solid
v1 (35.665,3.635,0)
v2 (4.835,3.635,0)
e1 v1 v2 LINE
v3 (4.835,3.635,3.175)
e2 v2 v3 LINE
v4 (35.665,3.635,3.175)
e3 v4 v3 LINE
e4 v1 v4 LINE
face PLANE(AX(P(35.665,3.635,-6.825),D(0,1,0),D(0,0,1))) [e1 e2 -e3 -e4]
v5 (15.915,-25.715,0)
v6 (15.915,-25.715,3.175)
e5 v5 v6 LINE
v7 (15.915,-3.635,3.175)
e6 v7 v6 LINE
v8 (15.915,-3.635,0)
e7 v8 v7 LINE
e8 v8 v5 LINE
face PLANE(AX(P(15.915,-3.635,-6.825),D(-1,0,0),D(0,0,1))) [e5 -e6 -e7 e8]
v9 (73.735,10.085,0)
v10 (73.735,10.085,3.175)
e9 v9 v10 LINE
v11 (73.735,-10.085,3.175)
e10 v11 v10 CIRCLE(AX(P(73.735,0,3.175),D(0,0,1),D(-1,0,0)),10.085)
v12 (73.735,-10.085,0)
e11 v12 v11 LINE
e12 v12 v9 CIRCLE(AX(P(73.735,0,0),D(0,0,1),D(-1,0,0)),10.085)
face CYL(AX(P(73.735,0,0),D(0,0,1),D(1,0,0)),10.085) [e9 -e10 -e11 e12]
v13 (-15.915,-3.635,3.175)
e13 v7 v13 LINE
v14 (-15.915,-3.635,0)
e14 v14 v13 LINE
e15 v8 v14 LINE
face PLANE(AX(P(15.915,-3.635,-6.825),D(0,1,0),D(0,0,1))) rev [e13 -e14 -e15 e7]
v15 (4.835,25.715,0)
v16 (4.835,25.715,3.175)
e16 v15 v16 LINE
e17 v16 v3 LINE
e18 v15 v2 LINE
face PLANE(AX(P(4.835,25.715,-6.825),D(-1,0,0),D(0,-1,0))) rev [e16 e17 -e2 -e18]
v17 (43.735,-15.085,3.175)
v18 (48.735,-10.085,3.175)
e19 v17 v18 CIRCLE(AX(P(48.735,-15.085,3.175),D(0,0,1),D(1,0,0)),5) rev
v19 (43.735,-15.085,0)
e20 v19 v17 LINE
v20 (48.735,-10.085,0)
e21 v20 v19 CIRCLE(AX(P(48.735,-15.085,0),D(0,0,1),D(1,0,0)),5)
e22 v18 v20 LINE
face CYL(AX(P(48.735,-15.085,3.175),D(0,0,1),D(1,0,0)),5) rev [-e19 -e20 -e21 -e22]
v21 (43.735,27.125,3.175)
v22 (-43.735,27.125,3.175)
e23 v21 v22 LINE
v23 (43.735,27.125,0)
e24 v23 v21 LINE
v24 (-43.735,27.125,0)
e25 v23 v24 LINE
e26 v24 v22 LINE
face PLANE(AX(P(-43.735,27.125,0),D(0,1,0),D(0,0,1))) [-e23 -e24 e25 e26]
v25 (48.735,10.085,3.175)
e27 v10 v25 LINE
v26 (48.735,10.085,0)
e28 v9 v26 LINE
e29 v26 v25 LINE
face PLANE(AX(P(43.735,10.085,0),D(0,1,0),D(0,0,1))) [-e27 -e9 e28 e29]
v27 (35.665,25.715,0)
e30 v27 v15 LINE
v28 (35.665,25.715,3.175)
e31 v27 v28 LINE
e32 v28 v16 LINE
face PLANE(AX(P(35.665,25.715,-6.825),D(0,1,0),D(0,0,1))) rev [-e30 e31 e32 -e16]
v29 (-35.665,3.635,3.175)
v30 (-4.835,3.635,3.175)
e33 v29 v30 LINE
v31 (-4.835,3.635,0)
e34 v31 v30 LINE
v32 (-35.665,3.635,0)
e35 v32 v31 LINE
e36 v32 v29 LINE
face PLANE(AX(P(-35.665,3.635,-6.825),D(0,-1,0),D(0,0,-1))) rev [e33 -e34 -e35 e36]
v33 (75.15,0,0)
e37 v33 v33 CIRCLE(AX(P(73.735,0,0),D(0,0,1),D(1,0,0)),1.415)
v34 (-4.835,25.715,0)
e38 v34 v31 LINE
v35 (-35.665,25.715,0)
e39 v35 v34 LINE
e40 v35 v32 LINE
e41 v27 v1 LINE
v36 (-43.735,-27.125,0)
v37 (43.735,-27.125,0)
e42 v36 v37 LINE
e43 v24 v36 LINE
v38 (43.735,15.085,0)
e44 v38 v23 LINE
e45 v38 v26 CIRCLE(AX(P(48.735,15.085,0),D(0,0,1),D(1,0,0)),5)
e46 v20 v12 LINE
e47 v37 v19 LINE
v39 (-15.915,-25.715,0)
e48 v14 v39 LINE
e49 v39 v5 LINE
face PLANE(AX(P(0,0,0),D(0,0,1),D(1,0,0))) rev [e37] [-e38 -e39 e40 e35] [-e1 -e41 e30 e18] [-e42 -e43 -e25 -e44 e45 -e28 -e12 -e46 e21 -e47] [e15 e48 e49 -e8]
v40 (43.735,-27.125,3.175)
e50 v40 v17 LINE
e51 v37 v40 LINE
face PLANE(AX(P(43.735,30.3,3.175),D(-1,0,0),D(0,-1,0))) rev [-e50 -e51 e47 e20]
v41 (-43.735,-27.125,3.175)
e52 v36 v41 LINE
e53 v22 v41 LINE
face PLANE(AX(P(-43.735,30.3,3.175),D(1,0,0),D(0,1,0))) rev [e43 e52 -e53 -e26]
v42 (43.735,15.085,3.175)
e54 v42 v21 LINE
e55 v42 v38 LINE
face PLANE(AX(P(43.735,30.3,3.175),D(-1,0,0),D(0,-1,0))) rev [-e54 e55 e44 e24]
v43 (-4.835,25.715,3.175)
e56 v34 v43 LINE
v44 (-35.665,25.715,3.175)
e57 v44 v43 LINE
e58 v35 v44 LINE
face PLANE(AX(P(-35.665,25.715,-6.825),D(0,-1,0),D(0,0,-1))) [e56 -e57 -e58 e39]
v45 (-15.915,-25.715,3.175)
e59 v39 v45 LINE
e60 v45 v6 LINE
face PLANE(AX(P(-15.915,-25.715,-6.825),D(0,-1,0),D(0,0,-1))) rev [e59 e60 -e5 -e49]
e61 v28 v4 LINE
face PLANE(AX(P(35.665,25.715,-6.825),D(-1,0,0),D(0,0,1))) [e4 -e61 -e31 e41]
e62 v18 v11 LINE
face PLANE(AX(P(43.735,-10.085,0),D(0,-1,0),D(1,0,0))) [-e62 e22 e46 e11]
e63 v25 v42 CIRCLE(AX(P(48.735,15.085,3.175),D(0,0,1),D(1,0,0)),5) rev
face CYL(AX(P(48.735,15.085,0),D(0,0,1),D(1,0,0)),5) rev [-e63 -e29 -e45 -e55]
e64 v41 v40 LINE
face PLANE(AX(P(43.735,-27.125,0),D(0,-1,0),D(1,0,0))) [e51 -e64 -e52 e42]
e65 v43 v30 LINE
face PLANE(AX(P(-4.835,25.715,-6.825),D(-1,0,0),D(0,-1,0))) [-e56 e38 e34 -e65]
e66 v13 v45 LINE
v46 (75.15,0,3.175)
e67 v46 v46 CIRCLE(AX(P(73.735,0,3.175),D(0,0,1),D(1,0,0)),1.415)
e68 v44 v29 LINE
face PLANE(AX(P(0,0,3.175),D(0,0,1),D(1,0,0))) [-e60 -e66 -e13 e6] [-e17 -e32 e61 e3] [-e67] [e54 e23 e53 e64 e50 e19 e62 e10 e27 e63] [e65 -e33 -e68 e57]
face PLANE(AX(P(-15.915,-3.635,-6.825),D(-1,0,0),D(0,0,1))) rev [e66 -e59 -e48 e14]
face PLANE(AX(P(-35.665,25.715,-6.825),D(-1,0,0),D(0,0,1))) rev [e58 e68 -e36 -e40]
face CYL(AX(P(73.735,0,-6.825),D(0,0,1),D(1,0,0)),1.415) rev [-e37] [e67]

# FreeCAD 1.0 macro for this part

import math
import FreeCAD as App
import Part
import Sketcher
from FreeCAD import Vector
Q = App.Units.Quantity


def edges_at(feature, points):
    """Names of the edges that pass closest to the given points."""
    edges = feature.Shape.Edges
    near = lambda p: min(range(len(edges)), key=lambda i: edges[i].distToShape(Part.Vertex(*p))[0])
    return sorted({f"Edge{near(p) + 1}" for p in points})

doc = App.newDocument("Part")
params = doc.addObject("Spreadsheet::Sheet", "Params")
for row, (alias, value) in enumerate([
    ("sketch1_height", "60.6 mm"),
    ("sketch1_width", "87.47 mm"),
    ("pad1_length", "3.175 mm"),
    ("sketch2_width", "30 mm"),
    ("pad2_length", "3.175 mm"),
    ("fillet_radius", "5 mm"),
    ("sketch3_diameter", "2.83 mm"),
    ("pocket1_length", "10 mm"),
    ("sketch4_width", "87.47 mm"),
    ("pocket2_length", "10 mm"),
    ("sketch5_width", "30.83 mm"),
    ("sketch5_width2", "31.83 mm"),
    ("sketch5_height", "22.08 mm"),
    ("pocket3_length", "10 mm"),
    ("sketch6_width", "87.47 mm"),
    ("sketch6_height", "0.09 mm"),
    ("pad3_length", "3.175 mm"),
], start=1):
    params.set(f"A{row}", alias)
    params.set(f"B{row}", "=" + value)
    params.setAlias(f"B{row}", alias)

body = doc.addObject("PartDesign::Body", "Body")

sketch1 = doc.addObject("Sketcher::SketchObject", "Sketch")
body.addObject(sketch1)
sketch1.AttachmentSupport = (doc.XY_Plane, [""])
sketch1.MapMode = "FlatFace"
sketch1.addGeometry(Part.LineSegment(Vector(-44, 30, 0), Vector(-44, -30, 0)), False)
sketch1.addGeometry(Part.LineSegment(Vector(-44, -30, 0), Vector(44, -30, 0)), False)
sketch1.addGeometry(Part.LineSegment(Vector(44, -30, 0), Vector(44, 30, 0)), False)
sketch1.addGeometry(Part.LineSegment(Vector(44, 30, 0), Vector(-44, 30, 0)), False)
sketch1.addConstraint(Sketcher.Constraint("Coincident", 0, 2, 1, 1))
sketch1.addConstraint(Sketcher.Constraint("Coincident", 1, 2, 2, 1))
sketch1.addConstraint(Sketcher.Constraint("Coincident", 2, 2, 3, 1))
sketch1.addConstraint(Sketcher.Constraint("Coincident", 3, 2, 0, 1))
sketch1.addConstraint(Sketcher.Constraint("Vertical", 0))
sketch1.addConstraint(Sketcher.Constraint("Horizontal", 1))
sketch1.addConstraint(Sketcher.Constraint("Vertical", 2))
sketch1.addConstraint(Sketcher.Constraint("Horizontal", 3))
sketch1.addConstraint(Sketcher.Constraint("Symmetric", 0, 2, 2, 2, -1, 1))
sketch1.addConstraint(Sketcher.Constraint("DistanceY", 0, 2, 0, 1, Q("60.6 mm")))
sketch1.addConstraint(Sketcher.Constraint("DistanceX", 1, 1, 1, 2, Q("87.47 mm")))
sketch1.setExpression("Constraints[9]", "Params.sketch1_height")
sketch1.setExpression("Constraints[10]", "Params.sketch1_width")
pad1 = doc.addObject("PartDesign::Pad", "Pad")
body.addObject(pad1)
pad1.Profile = sketch1
pad1.setExpression("Length", "Params.pad1_length")

sketch2 = doc.addObject("Sketcher::SketchObject", "Sketch001")
body.addObject(sketch2)
sketch2.AttachmentSupport = (doc.XY_Plane, [""])
sketch2.MapMode = "FlatFace"
sketch2.AttachmentOffset = App.Placement(Vector(0, 0, 3.175), App.Rotation())
sketch2.addGeometry(Part.LineSegment(Vector(44, 10, 0), Vector(44, -10, 0)), False)
sketch2.addGeometry(Part.LineSegment(Vector(44, -10, 0), Vector(74, -10, 0)), False)
sketch2.addGeometry(Part.ArcOfCircle(Part.Circle(Vector(74, 0, 0), Vector(0, 0, 1), 10), math.radians(-90), math.radians(90)), False)
sketch2.addGeometry(Part.LineSegment(Vector(74, 10, 0), Vector(44, 10, 0)), False)
sketch2.addConstraint(Sketcher.Constraint("Coincident", 0, 2, 1, 1))
sketch2.addConstraint(Sketcher.Constraint("Tangent", 1, 2, 2, 1))
sketch2.addConstraint(Sketcher.Constraint("Tangent", 2, 2, 3, 1))
sketch2.addConstraint(Sketcher.Constraint("Coincident", 3, 2, 0, 1))
sketch2.addConstraint(Sketcher.Constraint("Vertical", 0))
sketch2.addConstraint(Sketcher.Constraint("Horizontal", 1))
sketch2.addConstraint(Sketcher.Constraint("Horizontal", 3))
sketch2.addConstraint(Sketcher.Constraint("PointOnObject", 2, 3, -1))
sketch2.addConstraint(Sketcher.Constraint("DistanceX", 1, 1, 1, 2, Q("30 mm")))
sketch2.addConstraint(Sketcher.Constraint("Radius", 2, Q("10.085 mm")))
sketch2.addConstraint(Sketcher.Constraint("DistanceX", -1, 1, 2, 3, Q("73.735 mm")))
sketch2.setExpression("Constraints[8]", "Params.sketch2_width")
pad2 = doc.addObject("PartDesign::Pad", "Pad001")
body.addObject(pad2)
pad2.Profile = sketch2
pad2.setExpression("Length", "Params.pad2_length")
pad2.Reversed = True
doc.recompute()

fillet = doc.addObject("PartDesign::Fillet", "Fillet")
body.addObject(fillet)
fillet.Base = (pad2, edges_at(pad2, [(43.735, -10.085, 1.587), (43.735, 10.085, 1.587)]))
fillet.setExpression("Radius", "Params.fillet_radius")

sketch3 = doc.addObject("Sketcher::SketchObject", "Sketch002")
body.addObject(sketch3)
sketch3.AttachmentSupport = (doc.XY_Plane, [""])
sketch3.MapMode = "FlatFace"
sketch3.AttachmentOffset = App.Placement(Vector(0, 0, 3.175), App.Rotation())
sketch3.addGeometry(Part.Circle(Vector(73.7, 0, 0), Vector(0, 0, 1), 1.4), False)
sketch3.addConstraint(Sketcher.Constraint("PointOnObject", 0, 3, -1))
sketch3.addConstraint(Sketcher.Constraint("Diameter", 0, Q("2.83 mm")))
sketch3.addConstraint(Sketcher.Constraint("DistanceX", -1, 1, 0, 3, Q("73.735 mm")))
sketch3.setExpression("Constraints[1]", "Params.sketch3_diameter")
pocket1 = doc.addObject("PartDesign::Pocket", "Pocket")
body.addObject(pocket1)
pocket1.Profile = sketch3
pocket1.setExpression("Length", "Params.pocket1_length")

sketch4 = doc.addObject("Sketcher::SketchObject", "Sketch003")
body.addObject(sketch4)
sketch4.AttachmentSupport = (doc.XY_Plane, [""])
sketch4.MapMode = "FlatFace"
sketch4.AttachmentOffset = App.Placement(Vector(0, 0, 3.175), App.Rotation())
sketch4.addGeometry(Part.LineSegment(Vector(-43.7, 30.3, 0), Vector(-43.7, 27, 0)), False)
sketch4.addGeometry(Part.LineSegment(Vector(-43.7, 27, 0), Vector(43.7, 27, 0)), False)
sketch4.addGeometry(Part.LineSegment(Vector(43.7, 27, 0), Vector(43.7, 30.3, 0)), False)
sketch4.addGeometry(Part.LineSegment(Vector(43.7, 30.3, 0), Vector(-43.7, 30.3, 0)), False)
sketch4.addGeometry(Part.LineSegment(Vector(-43.7, -27, 0), Vector(-43.7, -30.3, 0)), False)
sketch4.addGeometry(Part.LineSegment(Vector(-43.7, -30.3, 0), Vector(43.7, -30.3, 0)), False)
sketch4.addGeometry(Part.LineSegment(Vector(43.7, -30.3, 0), Vector(43.7, -27, 0)), False)
sketch4.addGeometry(Part.LineSegment(Vector(43.7, -27, 0), Vector(-43.7, -27, 0)), False)
sketch4.addConstraint(Sketcher.Constraint("Coincident", 0, 2, 1, 1))
sketch4.addConstraint(Sketcher.Constraint("Coincident", 1, 2, 2, 1))
sketch4.addConstraint(Sketcher.Constraint("Coincident", 2, 2, 3, 1))
sketch4.addConstraint(Sketcher.Constraint("Coincident", 3, 2, 0, 1))
sketch4.addConstraint(Sketcher.Constraint("Coincident", 4, 2, 5, 1))
sketch4.addConstraint(Sketcher.Constraint("Coincident", 5, 2, 6, 1))
sketch4.addConstraint(Sketcher.Constraint("Coincident", 6, 2, 7, 1))
sketch4.addConstraint(Sketcher.Constraint("Coincident", 7, 2, 4, 1))
sketch4.addConstraint(Sketcher.Constraint("Vertical", 0))
sketch4.addConstraint(Sketcher.Constraint("Horizontal", 1))
sketch4.addConstraint(Sketcher.Constraint("Vertical", 2))
sketch4.addConstraint(Sketcher.Constraint("Horizontal", 3))
sketch4.addConstraint(Sketcher.Constraint("Vertical", 4))
sketch4.addConstraint(Sketcher.Constraint("Horizontal", 5))
sketch4.addConstraint(Sketcher.Constraint("Vertical", 6))
sketch4.addConstraint(Sketcher.Constraint("Horizontal", 7))
sketch4.addConstraint(Sketcher.Constraint("Symmetric", 2, 2, 4, 2, -1, 1))
sketch4.addConstraint(Sketcher.Constraint("Symmetric", 0, 2, 6, 2, -1, 1))
sketch4.addConstraint(Sketcher.Constraint("Vertical", 3, 2, 4, 2))
sketch4.addConstraint(Sketcher.Constraint("DistanceX", 1, 1, 1, 2, Q("87.47 mm")))
sketch4.addConstraint(Sketcher.Constraint("DistanceY", -1, 1, 2, 2, Q("30.3 mm")))
sketch4.addConstraint(Sketcher.Constraint("DistanceY", 0, 2, 0, 1, Q("3.265 mm")))
sketch4.setExpression("Constraints[19]", "Params.sketch4_width")
pocket2 = doc.addObject("PartDesign::Pocket", "Pocket001")
body.addObject(pocket2)
pocket2.Profile = sketch4
pocket2.setExpression("Length", "Params.pocket2_length")

sketch5 = doc.addObject("Sketcher::SketchObject", "Sketch004")
body.addObject(sketch5)
sketch5.AttachmentSupport = (doc.XY_Plane, [""])
sketch5.MapMode = "FlatFace"
sketch5.AttachmentOffset = App.Placement(Vector(0, 0, 3.175), App.Rotation())
sketch5.addGeometry(Part.LineSegment(Vector(5, 26, 0), Vector(5, 4, 0)), False)
sketch5.addGeometry(Part.LineSegment(Vector(5, 4, 0), Vector(36, 4, 0)), False)
sketch5.addGeometry(Part.LineSegment(Vector(36, 4, 0), Vector(36, 26, 0)), False)
sketch5.addGeometry(Part.LineSegment(Vector(36, 26, 0), Vector(5, 26, 0)), False)
sketch5.addGeometry(Part.LineSegment(Vector(-36, 26, 0), Vector(-36, 4, 0)), False)
sketch5.addGeometry(Part.LineSegment(Vector(-36, 4, 0), Vector(-5, 4, 0)), False)
sketch5.addGeometry(Part.LineSegment(Vector(-5, 4, 0), Vector(-5, 26, 0)), False)
sketch5.addGeometry(Part.LineSegment(Vector(-5, 26, 0), Vector(-36, 26, 0)), False)
sketch5.addGeometry(Part.LineSegment(Vector(-16, -4, 0), Vector(-16, -26, 0)), False)
sketch5.addGeometry(Part.LineSegment(Vector(-16, -26, 0), Vector(16, -26, 0)), False)
sketch5.addGeometry(Part.LineSegment(Vector(16, -26, 0), Vector(16, -4, 0)), False)
sketch5.addGeometry(Part.LineSegment(Vector(16, -4, 0), Vector(-16, -4, 0)), False)
sketch5.addConstraint(Sketcher.Constraint("Coincident", 0, 2, 1, 1))
sketch5.addConstraint(Sketcher.Constraint("Coincident", 1, 2, 2, 1))
sketch5.addConstraint(Sketcher.Constraint("Coincident", 2, 2, 3, 1))
sketch5.addConstraint(Sketcher.Constraint("Coincident", 3, 2, 0, 1))
sketch5.addConstraint(Sketcher.Constraint("Coincident", 4, 2, 5, 1))
sketch5.addConstraint(Sketcher.Constraint("Coincident", 5, 2, 6, 1))
sketch5.addConstraint(Sketcher.Constraint("Coincident", 6, 2, 7, 1))
sketch5.addConstraint(Sketcher.Constraint("Coincident", 7, 2, 4, 1))
sketch5.addConstraint(Sketcher.Constraint("Coincident", 8, 2, 9, 1))
sketch5.addConstraint(Sketcher.Constraint("Coincident", 9, 2, 10, 1))
sketch5.addConstraint(Sketcher.Constraint("Coincident", 10, 2, 11, 1))
sketch5.addConstraint(Sketcher.Constraint("Coincident", 11, 2, 8, 1))
sketch5.addConstraint(Sketcher.Constraint("Vertical", 0))
sketch5.addConstraint(Sketcher.Constraint("Horizontal", 1))
sketch5.addConstraint(Sketcher.Constraint("Vertical", 2))
sketch5.addConstraint(Sketcher.Constraint("Horizontal", 3))
sketch5.addConstraint(Sketcher.Constraint("Vertical", 4))
sketch5.addConstraint(Sketcher.Constraint("Horizontal", 5))
sketch5.addConstraint(Sketcher.Constraint("Vertical", 6))
sketch5.addConstraint(Sketcher.Constraint("Horizontal", 7))
sketch5.addConstraint(Sketcher.Constraint("Vertical", 8))
sketch5.addConstraint(Sketcher.Constraint("Horizontal", 9))
sketch5.addConstraint(Sketcher.Constraint("Vertical", 10))
sketch5.addConstraint(Sketcher.Constraint("Horizontal", 11))
sketch5.addConstraint(Sketcher.Constraint("Symmetric", 1, 2, 4, 2, -2))
sketch5.addConstraint(Sketcher.Constraint("Symmetric", 3, 2, 6, 2, -2))
sketch5.addConstraint(Sketcher.Constraint("Equal", 6, 8))
sketch5.addConstraint(Sketcher.Constraint("DistanceX", 1, 1, 1, 2, Q("30.83 mm")))
sketch5.addConstraint(Sketcher.Constraint("DistanceX", 9, 1, 9, 2, Q("31.83 mm")))
sketch5.addConstraint(Sketcher.Constraint("DistanceY", 0, 2, 0, 1, Q("22.08 mm")))
sketch5.addConstraint(Sketcher.Constraint("DistanceX", 4, 2, 0, 2, Q("40.5 mm")))
sketch5.addConstraint(Sketcher.Constraint("DistanceX", 8, 2, 5, 2, Q("11.08 mm")))
sketch5.addConstraint(Sketcher.Constraint("DistanceY", 8, 2, 5, 2, Q("29.35 mm")))
sketch5.addConstraint(Sketcher.Constraint("DistanceY", -1, 1, 0, 2, Q("3.635 mm")))
sketch5.setExpression("Constraints[27]", "Params.sketch5_width")
sketch5.setExpression("Constraints[28]", "Params.sketch5_width2")
sketch5.setExpression("Constraints[29]", "Params.sketch5_height")
pocket3 = doc.addObject("PartDesign::Pocket", "Pocket002")
body.addObject(pocket3)
pocket3.Profile = sketch5
pocket3.setExpression("Length", "Params.pocket3_length")

sketch6 = doc.addObject("Sketcher::SketchObject", "Sketch005")
body.addObject(sketch6)
sketch6.AttachmentSupport = (doc.XY_Plane, [""])
sketch6.MapMode = "FlatFace"
sketch6.AttachmentOffset = App.Placement(Vector(0, 0, 3.175), App.Rotation())
sketch6.addGeometry(Part.LineSegment(Vector(-43.73, 27.12, 0), Vector(-43.73, 27.04, 0)), False)
sketch6.addGeometry(Part.LineSegment(Vector(-43.73, 27.04, 0), Vector(43.73, 27.04, 0)), False)
sketch6.addGeometry(Part.LineSegment(Vector(43.73, 27.04, 0), Vector(43.73, 27.12, 0)), False)
sketch6.addGeometry(Part.LineSegment(Vector(43.73, 27.12, 0), Vector(-43.73, 27.12, 0)), False)
sketch6.addGeometry(Part.LineSegment(Vector(-43.73, -27.04, 0), Vector(-43.73, -27.12, 0)), False)
sketch6.addGeometry(Part.LineSegment(Vector(-43.73, -27.12, 0), Vector(43.73, -27.12, 0)), False)
sketch6.addGeometry(Part.LineSegment(Vector(43.73, -27.12, 0), Vector(43.73, -27.04, 0)), False)
sketch6.addGeometry(Part.LineSegment(Vector(43.73, -27.04, 0), Vector(-43.73, -27.04, 0)), False)
sketch6.addConstraint(Sketcher.Constraint("Coincident", 0, 2, 1, 1))
sketch6.addConstraint(Sketcher.Constraint("Coincident", 1, 2, 2, 1))
sketch6.addConstraint(Sketcher.Constraint("Coincident", 2, 2, 3, 1))
sketch6.addConstraint(Sketcher.Constraint("Coincident", 3, 2, 0, 1))
sketch6.addConstraint(Sketcher.Constraint("Coincident", 4, 2, 5, 1))
sketch6.addConstraint(Sketcher.Constraint("Coincident", 5, 2, 6, 1))
sketch6.addConstraint(Sketcher.Constraint("Coincident", 6, 2, 7, 1))
sketch6.addConstraint(Sketcher.Constraint("Coincident", 7, 2, 4, 1))
sketch6.addConstraint(Sketcher.Constraint("Vertical", 0))
sketch6.addConstraint(Sketcher.Constraint("Horizontal", 1))
sketch6.addConstraint(Sketcher.Constraint("Vertical", 2))
sketch6.addConstraint(Sketcher.Constraint("Horizontal", 3))
sketch6.addConstraint(Sketcher.Constraint("Vertical", 4))
sketch6.addConstraint(Sketcher.Constraint("Horizontal", 5))
sketch6.addConstraint(Sketcher.Constraint("Vertical", 6))
sketch6.addConstraint(Sketcher.Constraint("Horizontal", 7))
sketch6.addConstraint(Sketcher.Constraint("Symmetric", 2, 2, 4, 2, -1, 1))
sketch6.addConstraint(Sketcher.Constraint("Symmetric", 0, 2, 6, 2, -1, 1))
sketch6.addConstraint(Sketcher.Constraint("Vertical", 3, 2, 4, 2))
sketch6.addConstraint(Sketcher.Constraint("DistanceX", 1, 1, 1, 2, Q("87.47 mm")))
sketch6.addConstraint(Sketcher.Constraint("DistanceY", 0, 2, 0, 1, Q("0.09 mm")))
sketch6.addConstraint(Sketcher.Constraint("DistanceY", 4, 2, 0, 2, Q("54.16 mm")))
sketch6.setExpression("Constraints[19]", "Params.sketch6_width")
sketch6.setExpression("Constraints[20]", "Params.sketch6_height")
pad3 = doc.addObject("PartDesign::Pad", "Pad002")
body.addObject(pad3)
pad3.Profile = sketch6
pad3.setExpression("Length", "Params.pad3_length")
pad3.Reversed = True

doc.recompute()
